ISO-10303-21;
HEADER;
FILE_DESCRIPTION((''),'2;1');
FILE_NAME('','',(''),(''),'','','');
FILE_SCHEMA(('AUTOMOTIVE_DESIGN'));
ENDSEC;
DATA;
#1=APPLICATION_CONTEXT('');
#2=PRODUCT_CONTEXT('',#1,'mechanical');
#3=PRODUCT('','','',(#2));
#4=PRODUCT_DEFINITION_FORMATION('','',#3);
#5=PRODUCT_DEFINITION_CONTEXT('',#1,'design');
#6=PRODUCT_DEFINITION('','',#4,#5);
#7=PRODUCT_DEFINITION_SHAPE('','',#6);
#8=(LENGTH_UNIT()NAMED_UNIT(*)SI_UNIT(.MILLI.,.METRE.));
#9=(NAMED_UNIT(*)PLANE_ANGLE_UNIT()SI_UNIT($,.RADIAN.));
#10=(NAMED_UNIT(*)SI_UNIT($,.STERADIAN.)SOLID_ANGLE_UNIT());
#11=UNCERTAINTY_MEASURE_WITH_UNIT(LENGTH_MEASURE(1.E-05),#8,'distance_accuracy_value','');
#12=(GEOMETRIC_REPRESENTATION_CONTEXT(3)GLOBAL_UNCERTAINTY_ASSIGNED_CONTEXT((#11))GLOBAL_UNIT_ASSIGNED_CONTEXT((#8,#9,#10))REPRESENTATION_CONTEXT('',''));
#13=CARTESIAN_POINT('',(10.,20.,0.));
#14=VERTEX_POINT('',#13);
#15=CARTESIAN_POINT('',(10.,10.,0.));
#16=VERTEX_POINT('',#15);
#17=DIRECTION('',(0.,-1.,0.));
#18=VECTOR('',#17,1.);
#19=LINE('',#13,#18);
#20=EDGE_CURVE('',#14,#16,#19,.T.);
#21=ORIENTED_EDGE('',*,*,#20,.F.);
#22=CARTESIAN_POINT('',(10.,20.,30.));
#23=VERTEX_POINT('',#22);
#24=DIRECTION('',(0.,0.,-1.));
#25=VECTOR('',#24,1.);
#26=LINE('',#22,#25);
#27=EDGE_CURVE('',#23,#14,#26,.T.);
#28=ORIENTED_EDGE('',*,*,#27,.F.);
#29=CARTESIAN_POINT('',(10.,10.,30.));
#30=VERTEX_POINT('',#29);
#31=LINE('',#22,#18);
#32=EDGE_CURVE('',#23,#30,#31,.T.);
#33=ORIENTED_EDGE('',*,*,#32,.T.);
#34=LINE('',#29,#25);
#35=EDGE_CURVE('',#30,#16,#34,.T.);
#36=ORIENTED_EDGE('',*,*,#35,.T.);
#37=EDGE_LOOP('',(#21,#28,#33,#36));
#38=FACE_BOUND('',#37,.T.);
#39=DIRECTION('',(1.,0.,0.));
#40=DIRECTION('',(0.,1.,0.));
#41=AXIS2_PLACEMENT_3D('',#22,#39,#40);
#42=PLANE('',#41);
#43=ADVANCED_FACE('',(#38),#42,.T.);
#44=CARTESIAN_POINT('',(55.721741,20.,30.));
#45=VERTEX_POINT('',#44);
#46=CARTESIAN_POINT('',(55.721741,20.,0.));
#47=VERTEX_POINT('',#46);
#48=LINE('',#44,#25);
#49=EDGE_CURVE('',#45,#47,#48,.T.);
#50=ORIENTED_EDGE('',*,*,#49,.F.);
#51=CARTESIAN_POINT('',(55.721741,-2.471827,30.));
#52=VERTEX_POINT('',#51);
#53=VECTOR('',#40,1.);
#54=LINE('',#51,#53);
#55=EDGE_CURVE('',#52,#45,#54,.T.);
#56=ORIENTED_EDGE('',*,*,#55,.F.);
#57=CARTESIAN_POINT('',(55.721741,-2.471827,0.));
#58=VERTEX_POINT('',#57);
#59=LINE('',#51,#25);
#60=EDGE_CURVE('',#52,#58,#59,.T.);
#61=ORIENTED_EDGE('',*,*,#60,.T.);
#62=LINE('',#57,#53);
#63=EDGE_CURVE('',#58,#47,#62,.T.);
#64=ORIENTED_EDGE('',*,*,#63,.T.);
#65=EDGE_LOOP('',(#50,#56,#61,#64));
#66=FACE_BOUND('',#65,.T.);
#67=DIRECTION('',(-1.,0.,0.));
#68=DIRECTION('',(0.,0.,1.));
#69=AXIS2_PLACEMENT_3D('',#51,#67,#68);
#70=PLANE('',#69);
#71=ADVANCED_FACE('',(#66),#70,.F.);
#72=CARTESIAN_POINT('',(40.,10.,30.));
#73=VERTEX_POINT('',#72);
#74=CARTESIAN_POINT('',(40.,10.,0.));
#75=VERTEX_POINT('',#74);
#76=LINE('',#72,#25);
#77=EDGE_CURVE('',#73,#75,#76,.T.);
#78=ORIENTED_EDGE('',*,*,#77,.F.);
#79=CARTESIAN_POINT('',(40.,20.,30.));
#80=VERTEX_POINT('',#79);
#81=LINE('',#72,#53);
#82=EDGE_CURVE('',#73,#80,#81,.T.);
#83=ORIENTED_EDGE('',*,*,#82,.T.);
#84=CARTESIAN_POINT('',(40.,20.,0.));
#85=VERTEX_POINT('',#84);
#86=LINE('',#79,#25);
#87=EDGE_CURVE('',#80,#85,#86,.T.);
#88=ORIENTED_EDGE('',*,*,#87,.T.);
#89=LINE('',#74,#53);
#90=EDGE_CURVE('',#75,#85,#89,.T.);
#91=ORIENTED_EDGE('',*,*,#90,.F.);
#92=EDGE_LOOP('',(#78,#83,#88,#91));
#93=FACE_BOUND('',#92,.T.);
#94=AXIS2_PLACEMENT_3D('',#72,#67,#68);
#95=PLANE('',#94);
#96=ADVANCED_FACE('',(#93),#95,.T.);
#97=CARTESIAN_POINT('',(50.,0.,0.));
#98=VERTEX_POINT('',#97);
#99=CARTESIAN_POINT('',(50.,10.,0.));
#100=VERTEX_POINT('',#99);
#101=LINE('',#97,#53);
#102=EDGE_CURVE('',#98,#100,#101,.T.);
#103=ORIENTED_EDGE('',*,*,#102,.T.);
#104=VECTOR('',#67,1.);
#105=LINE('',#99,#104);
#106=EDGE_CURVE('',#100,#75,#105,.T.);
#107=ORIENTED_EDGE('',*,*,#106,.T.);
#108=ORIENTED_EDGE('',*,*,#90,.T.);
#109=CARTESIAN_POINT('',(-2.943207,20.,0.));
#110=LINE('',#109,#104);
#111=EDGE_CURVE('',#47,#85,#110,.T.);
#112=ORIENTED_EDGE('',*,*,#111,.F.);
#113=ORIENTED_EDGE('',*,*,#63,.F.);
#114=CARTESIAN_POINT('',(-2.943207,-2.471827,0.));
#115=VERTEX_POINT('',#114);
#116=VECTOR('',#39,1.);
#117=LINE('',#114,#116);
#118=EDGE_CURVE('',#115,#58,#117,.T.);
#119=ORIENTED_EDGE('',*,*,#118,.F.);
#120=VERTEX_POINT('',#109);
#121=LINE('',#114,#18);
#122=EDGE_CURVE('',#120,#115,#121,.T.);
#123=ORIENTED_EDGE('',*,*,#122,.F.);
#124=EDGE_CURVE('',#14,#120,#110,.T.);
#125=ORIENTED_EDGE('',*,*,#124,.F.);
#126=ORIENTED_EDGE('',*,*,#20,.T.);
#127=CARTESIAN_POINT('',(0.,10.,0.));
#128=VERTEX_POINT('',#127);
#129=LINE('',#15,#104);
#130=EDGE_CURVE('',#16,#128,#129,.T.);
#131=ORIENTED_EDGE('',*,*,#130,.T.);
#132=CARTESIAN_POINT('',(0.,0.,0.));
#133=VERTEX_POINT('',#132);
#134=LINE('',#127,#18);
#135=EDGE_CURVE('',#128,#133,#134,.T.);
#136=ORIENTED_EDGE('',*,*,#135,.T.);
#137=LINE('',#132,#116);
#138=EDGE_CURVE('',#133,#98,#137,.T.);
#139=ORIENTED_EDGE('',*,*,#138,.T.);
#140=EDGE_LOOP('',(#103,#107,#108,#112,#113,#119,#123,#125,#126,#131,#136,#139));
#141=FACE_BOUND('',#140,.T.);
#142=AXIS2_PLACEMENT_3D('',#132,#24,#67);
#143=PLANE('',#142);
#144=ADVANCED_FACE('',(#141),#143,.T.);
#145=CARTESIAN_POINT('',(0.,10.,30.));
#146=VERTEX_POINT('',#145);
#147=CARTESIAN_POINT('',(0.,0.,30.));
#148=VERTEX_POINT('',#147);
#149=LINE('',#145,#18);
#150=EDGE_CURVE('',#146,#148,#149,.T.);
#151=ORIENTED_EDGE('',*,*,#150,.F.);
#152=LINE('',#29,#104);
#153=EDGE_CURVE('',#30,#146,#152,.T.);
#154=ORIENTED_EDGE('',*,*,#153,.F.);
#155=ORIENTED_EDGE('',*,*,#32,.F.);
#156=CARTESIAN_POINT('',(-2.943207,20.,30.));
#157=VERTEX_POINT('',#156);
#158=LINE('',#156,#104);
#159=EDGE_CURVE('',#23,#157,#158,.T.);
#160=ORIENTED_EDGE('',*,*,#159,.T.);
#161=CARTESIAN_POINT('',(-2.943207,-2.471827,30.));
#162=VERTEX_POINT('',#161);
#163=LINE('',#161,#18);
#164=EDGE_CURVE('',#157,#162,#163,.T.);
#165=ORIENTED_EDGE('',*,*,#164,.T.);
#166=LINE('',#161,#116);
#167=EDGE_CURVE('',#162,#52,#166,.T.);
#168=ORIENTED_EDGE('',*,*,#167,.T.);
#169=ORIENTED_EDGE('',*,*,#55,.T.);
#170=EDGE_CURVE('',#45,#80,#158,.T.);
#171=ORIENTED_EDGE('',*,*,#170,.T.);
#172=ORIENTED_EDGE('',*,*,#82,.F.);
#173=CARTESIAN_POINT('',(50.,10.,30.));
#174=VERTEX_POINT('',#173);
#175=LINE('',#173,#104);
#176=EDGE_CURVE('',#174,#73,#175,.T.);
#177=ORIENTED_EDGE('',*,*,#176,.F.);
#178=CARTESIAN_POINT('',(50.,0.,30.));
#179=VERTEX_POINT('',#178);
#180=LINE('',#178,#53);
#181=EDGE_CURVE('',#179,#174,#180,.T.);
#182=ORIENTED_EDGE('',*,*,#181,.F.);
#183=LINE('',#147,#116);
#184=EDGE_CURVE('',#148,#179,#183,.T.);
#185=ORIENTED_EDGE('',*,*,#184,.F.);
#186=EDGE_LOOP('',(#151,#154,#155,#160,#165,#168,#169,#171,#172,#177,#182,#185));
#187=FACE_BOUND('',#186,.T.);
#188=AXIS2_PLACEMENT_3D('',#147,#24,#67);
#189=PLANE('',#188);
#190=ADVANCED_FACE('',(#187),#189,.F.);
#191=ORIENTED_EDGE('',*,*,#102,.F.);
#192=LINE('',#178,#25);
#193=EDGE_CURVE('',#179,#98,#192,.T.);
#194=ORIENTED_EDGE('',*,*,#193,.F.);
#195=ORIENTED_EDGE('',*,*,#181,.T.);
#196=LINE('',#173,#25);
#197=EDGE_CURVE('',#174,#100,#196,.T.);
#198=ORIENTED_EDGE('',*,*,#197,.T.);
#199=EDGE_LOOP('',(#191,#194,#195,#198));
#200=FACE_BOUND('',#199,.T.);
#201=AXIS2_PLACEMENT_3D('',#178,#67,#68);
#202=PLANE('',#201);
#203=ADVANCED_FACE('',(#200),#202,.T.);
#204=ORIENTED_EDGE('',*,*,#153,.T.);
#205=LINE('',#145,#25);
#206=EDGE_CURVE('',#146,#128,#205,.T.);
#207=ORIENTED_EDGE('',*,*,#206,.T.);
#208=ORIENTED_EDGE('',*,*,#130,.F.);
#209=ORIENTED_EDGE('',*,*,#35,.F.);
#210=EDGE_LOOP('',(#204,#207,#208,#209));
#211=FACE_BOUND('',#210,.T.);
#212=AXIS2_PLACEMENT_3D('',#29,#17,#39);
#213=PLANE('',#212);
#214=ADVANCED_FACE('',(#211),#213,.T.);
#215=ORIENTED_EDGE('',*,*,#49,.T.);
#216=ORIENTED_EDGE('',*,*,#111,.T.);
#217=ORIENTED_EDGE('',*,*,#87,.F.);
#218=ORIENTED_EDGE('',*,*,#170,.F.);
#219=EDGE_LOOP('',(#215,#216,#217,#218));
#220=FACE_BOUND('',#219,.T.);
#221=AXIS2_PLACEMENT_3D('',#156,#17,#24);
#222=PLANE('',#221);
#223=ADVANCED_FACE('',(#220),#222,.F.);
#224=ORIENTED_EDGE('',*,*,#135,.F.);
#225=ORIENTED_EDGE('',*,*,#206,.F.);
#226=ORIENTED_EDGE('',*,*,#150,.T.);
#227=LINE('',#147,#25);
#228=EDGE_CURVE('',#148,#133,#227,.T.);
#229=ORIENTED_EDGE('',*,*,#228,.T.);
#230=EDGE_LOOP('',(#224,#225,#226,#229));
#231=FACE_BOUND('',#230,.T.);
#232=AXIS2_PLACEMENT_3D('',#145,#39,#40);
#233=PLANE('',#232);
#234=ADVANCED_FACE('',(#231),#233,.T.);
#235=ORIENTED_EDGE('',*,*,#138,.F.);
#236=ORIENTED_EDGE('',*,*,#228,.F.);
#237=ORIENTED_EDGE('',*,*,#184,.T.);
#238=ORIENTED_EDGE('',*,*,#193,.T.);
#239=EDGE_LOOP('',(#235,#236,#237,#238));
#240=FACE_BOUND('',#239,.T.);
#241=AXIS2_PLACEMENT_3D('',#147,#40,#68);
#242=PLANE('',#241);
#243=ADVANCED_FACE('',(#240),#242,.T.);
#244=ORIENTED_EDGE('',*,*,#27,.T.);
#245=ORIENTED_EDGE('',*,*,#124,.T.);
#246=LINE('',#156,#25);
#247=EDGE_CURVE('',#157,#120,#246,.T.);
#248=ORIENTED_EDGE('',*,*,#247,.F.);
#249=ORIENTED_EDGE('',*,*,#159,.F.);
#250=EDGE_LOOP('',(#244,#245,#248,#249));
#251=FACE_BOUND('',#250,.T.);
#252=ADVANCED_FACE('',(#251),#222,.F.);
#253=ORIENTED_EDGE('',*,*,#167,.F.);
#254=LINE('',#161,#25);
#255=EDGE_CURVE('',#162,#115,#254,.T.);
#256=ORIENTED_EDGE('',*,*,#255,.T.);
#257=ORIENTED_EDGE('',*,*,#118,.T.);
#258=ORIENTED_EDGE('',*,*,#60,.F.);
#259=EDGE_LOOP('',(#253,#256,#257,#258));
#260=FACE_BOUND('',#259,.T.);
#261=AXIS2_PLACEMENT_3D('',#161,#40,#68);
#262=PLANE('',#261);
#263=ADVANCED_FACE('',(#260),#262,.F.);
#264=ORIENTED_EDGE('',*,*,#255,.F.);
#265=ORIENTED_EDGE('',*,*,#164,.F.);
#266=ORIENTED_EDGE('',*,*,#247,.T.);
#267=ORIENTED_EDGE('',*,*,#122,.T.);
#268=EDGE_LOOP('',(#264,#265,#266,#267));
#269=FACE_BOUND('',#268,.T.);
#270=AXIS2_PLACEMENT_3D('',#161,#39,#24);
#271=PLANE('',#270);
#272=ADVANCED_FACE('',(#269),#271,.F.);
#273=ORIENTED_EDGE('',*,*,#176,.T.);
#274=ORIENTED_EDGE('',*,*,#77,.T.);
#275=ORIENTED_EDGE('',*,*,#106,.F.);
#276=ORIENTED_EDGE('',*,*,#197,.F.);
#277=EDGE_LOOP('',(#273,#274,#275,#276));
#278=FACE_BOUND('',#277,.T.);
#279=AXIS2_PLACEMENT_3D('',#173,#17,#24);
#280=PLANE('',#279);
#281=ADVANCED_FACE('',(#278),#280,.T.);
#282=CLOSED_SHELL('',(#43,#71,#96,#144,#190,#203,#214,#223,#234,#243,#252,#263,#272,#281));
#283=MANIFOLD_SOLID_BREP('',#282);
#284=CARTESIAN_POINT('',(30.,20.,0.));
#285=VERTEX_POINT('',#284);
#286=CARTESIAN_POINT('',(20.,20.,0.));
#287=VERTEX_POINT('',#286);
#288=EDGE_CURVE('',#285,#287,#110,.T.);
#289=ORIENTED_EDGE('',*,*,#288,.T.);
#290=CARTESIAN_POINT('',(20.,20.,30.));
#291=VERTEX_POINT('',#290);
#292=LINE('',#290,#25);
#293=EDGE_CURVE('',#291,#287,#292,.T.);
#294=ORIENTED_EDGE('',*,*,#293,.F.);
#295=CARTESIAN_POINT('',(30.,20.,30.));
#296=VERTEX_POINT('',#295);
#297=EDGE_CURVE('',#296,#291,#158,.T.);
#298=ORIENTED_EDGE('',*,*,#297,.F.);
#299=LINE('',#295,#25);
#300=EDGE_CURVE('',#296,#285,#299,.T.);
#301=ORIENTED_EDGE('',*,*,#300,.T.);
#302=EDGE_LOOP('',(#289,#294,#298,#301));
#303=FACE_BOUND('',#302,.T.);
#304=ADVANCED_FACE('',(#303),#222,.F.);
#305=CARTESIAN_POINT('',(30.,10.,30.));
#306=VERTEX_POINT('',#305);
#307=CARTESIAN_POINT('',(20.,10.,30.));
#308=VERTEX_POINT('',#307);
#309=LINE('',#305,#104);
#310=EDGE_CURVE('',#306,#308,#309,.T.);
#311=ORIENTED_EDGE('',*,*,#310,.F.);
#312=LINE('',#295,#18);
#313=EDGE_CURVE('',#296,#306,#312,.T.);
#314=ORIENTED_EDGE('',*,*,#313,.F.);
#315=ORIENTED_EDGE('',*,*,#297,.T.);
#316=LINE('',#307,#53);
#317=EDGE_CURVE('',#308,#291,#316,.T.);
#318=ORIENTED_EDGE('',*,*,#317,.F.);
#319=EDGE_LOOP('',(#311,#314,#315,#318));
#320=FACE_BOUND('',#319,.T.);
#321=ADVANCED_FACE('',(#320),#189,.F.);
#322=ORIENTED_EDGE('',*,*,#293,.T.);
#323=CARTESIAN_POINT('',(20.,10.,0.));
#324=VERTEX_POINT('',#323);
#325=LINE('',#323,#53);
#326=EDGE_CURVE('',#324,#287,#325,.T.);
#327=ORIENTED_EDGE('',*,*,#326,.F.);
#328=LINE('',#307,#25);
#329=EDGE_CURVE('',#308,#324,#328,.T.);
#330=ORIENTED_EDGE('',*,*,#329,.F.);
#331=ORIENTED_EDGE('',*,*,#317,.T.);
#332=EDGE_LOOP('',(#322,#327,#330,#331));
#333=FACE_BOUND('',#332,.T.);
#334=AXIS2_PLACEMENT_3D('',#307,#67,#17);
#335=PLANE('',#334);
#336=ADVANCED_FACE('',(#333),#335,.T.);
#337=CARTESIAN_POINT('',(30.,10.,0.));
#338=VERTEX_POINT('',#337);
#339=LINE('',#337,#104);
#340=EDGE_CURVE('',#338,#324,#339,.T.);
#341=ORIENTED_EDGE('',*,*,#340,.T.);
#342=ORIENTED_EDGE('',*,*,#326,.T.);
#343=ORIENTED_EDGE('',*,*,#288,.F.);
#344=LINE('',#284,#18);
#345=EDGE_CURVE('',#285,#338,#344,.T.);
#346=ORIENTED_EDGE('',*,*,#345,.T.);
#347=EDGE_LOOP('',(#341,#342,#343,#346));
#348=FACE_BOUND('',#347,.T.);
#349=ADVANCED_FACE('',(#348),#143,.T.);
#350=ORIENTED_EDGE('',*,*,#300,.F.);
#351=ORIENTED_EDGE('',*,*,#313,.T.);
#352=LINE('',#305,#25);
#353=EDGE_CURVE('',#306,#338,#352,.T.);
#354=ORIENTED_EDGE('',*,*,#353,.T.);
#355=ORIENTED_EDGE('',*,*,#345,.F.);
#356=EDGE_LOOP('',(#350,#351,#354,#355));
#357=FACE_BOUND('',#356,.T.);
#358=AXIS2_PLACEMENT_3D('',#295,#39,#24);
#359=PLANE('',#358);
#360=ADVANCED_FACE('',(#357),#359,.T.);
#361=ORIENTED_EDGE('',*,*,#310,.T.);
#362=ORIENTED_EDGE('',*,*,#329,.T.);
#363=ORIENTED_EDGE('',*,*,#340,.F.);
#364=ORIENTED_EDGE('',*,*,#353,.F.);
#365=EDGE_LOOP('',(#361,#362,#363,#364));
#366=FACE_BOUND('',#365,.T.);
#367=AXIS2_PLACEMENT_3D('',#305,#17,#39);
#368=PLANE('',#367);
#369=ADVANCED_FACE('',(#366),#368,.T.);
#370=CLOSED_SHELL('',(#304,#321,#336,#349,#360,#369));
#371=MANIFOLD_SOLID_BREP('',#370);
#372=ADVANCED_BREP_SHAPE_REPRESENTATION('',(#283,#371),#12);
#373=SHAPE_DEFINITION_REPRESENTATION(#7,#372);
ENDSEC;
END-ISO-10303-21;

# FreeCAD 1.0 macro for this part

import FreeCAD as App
import Part
import Sketcher
Q = App.Units.Quantity

doc = App.newDocument("Part")
body = doc.addObject("PartDesign::Body", "Body")
body.AllowCompound = True

# Sketch on XY plane
sketch1 = doc.addObject("Sketcher::SketchObject", "Sketch")
body.addObject(sketch1)
sketch1.AttachmentSupport = (doc.XY_Plane, [""])
sketch1.MapMode = "FlatFace"
sketch1.addGeometry([
    Part.LineSegment(App.Vector(-3, 20, 0), App.Vector(-3, -2, 0)),
    Part.LineSegment(App.Vector(-3, -2, 0), App.Vector(56, -2, 0)),
    Part.LineSegment(App.Vector(56, -2, 0), App.Vector(56, 20, 0)),
    Part.LineSegment(App.Vector(56, 20, 0), App.Vector(-3, 20, 0)),
], False)
sketch1.addConstraint([
    Sketcher.Constraint("Coincident", 0, 2, 1, 1),
    Sketcher.Constraint("Coincident", 1, 2, 2, 1),
    Sketcher.Constraint("Coincident", 2, 2, 3, 1),
    Sketcher.Constraint("Coincident", 3, 2, 0, 1),
    Sketcher.Constraint("Vertical", 0),
    Sketcher.Constraint("Horizontal", 1),
    Sketcher.Constraint("Vertical", 2),
    Sketcher.Constraint("Horizontal", 3),
    Sketcher.Constraint("DistanceY", -1, 1, 2, 2, Q("20 mm")),
    Sketcher.Constraint("DistanceX", 1, 1, 1, 2, Q("58.664948 mm")),
    Sketcher.Constraint("DistanceY", 0, 2, 0, 1, Q("22.471827 mm")),
    Sketcher.Constraint("DistanceX", -1, 1, 1, 2, Q("55.721741 mm")),
])
pad1 = doc.addObject("PartDesign::Pad", "Pad")
body.addObject(pad1)
pad1.Profile = sketch1
pad1.Length = 30

# Sketch on XY plane
sketch2 = doc.addObject("Sketcher::SketchObject", "Sketch001")
body.addObject(sketch2)
sketch2.AttachmentSupport = (doc.XY_Plane, [""])
sketch2.MapMode = "FlatFace"
sketch2.addGeometry([
    Part.LineSegment(App.Vector(0, 0, 0), App.Vector(50, 0, 0)),  # 0
    Part.LineSegment(App.Vector(50, 0, 0), App.Vector(50, 10, 0)),  # 1
    Part.LineSegment(App.Vector(50, 10, 0), App.Vector(40, 10, 0)),  # 2
    Part.LineSegment(App.Vector(40, 10, 0), App.Vector(40, 20, 0)),  # 3
    Part.LineSegment(App.Vector(40, 20, 0), App.Vector(30, 20, 0)),  # 4
    Part.LineSegment(App.Vector(30, 20, 0), App.Vector(30, 10, 0)),  # 5
    Part.LineSegment(App.Vector(30, 10, 0), App.Vector(20, 10, 0)),  # 6
    Part.LineSegment(App.Vector(20, 10, 0), App.Vector(20, 20, 0)),  # 7
    Part.LineSegment(App.Vector(20, 20, 0), App.Vector(10, 20, 0)),  # 8
    Part.LineSegment(App.Vector(10, 20, 0), App.Vector(10, 10, 0)),  # 9
    Part.LineSegment(App.Vector(10, 10, 0), App.Vector(0, 10, 0)),  # 10
    Part.LineSegment(App.Vector(0, 10, 0), App.Vector(0, 0, 0)),  # 11
], False)
sketch2.addConstraint([
    Sketcher.Constraint("Coincident", 0, 2, 1, 1),
    Sketcher.Constraint("Coincident", 1, 2, 2, 1),
    Sketcher.Constraint("Coincident", 2, 2, 3, 1),
    Sketcher.Constraint("Coincident", 3, 2, 4, 1),
    Sketcher.Constraint("Coincident", 4, 2, 5, 1),
    Sketcher.Constraint("Coincident", 5, 2, 6, 1),
    Sketcher.Constraint("Coincident", 6, 2, 7, 1),
    Sketcher.Constraint("Coincident", 7, 2, 8, 1),
    Sketcher.Constraint("Coincident", 8, 2, 9, 1),
    Sketcher.Constraint("Coincident", 9, 2, 10, 1),
    Sketcher.Constraint("Coincident", 10, 2, 11, 1),
    Sketcher.Constraint("Coincident", 11, 2, 0, 1),
    Sketcher.Constraint("Horizontal", 0),
    Sketcher.Constraint("Vertical", 1),
    Sketcher.Constraint("Horizontal", 2),
    Sketcher.Constraint("Vertical", 3),
    Sketcher.Constraint("Horizontal", 4),
    Sketcher.Constraint("Vertical", 5),
    Sketcher.Constraint("Horizontal", 6),
    Sketcher.Constraint("Vertical", 7),
    Sketcher.Constraint("Horizontal", 8),
    Sketcher.Constraint("Vertical", 9),
    Sketcher.Constraint("Horizontal", 10),
    Sketcher.Constraint("Vertical", 11),
    Sketcher.Constraint("Coincident", 11, 2, -1, 1),
    Sketcher.Constraint("Horizontal", 2, 2, 5, 2),
    Sketcher.Constraint("Horizontal", 4, 2, 7, 2),
    Sketcher.Constraint("Horizontal", 6, 2, 9, 2),
    Sketcher.Constraint("Equal", 2, 4),
    Sketcher.Constraint("Equal", 4, 6),
    Sketcher.Constraint("Equal", 6, 8),
    Sketcher.Constraint("Equal", 8, 10),
    Sketcher.Constraint("Equal", 10, 1),
    Sketcher.Constraint("Equal", 1, 3),
    Sketcher.Constraint("DistanceX", 0, 1, 0, 2, Q("50 mm")),
])
pocket1 = doc.addObject("PartDesign::Pocket", "Pocket")
body.addObject(pocket1)
pocket1.Profile = sketch2
pocket1.Type = "ThroughAll"
pocket1.Reversed = True

doc.recompute()
